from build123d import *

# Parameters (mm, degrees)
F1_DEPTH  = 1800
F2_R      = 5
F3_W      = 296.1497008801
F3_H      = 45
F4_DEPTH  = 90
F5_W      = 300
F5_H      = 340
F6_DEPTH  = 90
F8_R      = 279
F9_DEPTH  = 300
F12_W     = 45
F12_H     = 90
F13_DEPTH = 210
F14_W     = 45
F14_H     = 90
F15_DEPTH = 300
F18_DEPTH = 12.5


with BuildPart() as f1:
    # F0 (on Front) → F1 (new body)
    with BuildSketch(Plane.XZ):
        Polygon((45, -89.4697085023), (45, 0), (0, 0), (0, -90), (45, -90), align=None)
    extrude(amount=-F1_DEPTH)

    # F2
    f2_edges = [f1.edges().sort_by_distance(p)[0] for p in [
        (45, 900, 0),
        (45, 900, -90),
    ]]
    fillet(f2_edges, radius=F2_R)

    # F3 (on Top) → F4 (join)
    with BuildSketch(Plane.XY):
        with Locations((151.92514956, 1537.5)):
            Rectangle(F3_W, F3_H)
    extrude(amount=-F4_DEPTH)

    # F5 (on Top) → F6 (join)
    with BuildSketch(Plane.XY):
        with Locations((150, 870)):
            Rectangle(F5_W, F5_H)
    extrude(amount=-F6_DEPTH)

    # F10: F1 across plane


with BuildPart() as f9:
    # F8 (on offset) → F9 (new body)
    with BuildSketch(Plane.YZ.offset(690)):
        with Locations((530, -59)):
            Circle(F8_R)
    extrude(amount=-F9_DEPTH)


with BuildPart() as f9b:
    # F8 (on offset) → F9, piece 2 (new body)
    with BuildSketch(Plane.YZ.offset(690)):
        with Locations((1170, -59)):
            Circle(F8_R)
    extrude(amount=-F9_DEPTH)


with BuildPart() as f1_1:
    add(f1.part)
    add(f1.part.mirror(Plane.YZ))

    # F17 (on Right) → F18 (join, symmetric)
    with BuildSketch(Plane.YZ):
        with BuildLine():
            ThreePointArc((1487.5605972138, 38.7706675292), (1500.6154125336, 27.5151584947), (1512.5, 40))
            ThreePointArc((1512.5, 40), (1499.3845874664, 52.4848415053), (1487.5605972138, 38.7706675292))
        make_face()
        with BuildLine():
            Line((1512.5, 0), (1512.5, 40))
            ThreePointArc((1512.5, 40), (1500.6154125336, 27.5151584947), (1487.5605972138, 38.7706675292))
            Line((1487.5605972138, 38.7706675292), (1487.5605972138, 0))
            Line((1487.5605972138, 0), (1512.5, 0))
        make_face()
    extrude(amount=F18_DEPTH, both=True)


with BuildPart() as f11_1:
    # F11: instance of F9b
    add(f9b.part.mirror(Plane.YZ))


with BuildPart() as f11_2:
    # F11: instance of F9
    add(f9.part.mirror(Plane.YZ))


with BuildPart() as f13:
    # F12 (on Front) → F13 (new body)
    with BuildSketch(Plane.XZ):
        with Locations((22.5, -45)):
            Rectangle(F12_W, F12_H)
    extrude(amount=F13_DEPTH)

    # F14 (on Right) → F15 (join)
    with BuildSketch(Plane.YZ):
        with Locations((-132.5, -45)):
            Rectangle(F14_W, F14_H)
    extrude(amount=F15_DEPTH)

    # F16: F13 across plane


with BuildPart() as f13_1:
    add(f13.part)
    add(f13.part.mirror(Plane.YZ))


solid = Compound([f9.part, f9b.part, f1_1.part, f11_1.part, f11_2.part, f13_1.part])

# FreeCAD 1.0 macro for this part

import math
import FreeCAD as App
import Part
import Sketcher
from FreeCAD import Vector


def edges_at(feature, points):
    """Names of the edges that pass closest to the given points."""
    edges = feature.Shape.Edges
    near = lambda p: min(range(len(edges)), key=lambda i: edges[i].distToShape(Part.Vertex(*p))[0])
    return sorted({f"Edge{near(p) + 1}" for p in points})

doc = App.newDocument("Part")
body = doc.addObject("PartDesign::Body", "Body")

# Sketch on XZ plane
sketch1 = body.newObject("Sketcher::SketchObject", "Sketch")
sketch1.AttachmentSupport = (doc.getObject("XZ_Plane"), [""])
sketch1.MapMode = "FlatFace"
sketch1.addGeometry(Part.LineSegment(Vector(45, 0, 0), Vector(0, 0, 0)), False)
sketch1.addGeometry(Part.LineSegment(Vector(0, 0, 0), Vector(0, -90, 0)), False)
sketch1.addGeometry(Part.LineSegment(Vector(0, -90, 0), Vector(45, -90, 0)), False)
sketch1.addGeometry(Part.LineSegment(Vector(45, -90, 0), Vector(45, 0, 0)), False)
sketch1.addConstraint(Sketcher.Constraint("Coincident", 0, 2, 1, 1))
sketch1.addConstraint(Sketcher.Constraint("Coincident", 1, 2, 2, 1))
sketch1.addConstraint(Sketcher.Constraint("Coincident", 2, 2, 3, 1))
sketch1.addConstraint(Sketcher.Constraint("Coincident", 3, 2, 0, 1))
sketch1.addConstraint(Sketcher.Constraint("Horizontal", 0))
sketch1.addConstraint(Sketcher.Constraint("Vertical", 1))
sketch1.addConstraint(Sketcher.Constraint("Horizontal", 2))
sketch1.addConstraint(Sketcher.Constraint("Vertical", 3))
sketch1.addConstraint(Sketcher.Constraint("Coincident", 0, 2, -1, 1))
sketch1.addConstraint(Sketcher.Constraint("DistanceX", 0, 2, 0, 1, 45.0))
sketch1.addConstraint(Sketcher.Constraint("DistanceY", 1, 2, 1, 1, 90.0))
pad1 = body.newObject("PartDesign::Pad", "Pad")
pad1.Profile = sketch1
pad1.Length = 1800
pad1.Reversed = True
doc.recompute()

fillet = body.newObject("PartDesign::Fillet", "Fillet")
fillet.Base = (pad1, edges_at(pad1, [(45, 900, 0), (45, 900, -90)]))
fillet.Radius = 5

# Sketch on XY plane
sketch2 = body.newObject("Sketcher::SketchObject", "Sketch001")
sketch2.AttachmentSupport = (doc.getObject("XY_Plane"), [""])
sketch2.MapMode = "FlatFace"
sketch2.addGeometry(Part.LineSegment(Vector(4, 1560, 0), Vector(4, 1515, 0)), False)
sketch2.addGeometry(Part.LineSegment(Vector(4, 1515, 0), Vector(300, 1515, 0)), False)
sketch2.addGeometry(Part.LineSegment(Vector(300, 1515, 0), Vector(300, 1560, 0)), False)
sketch2.addGeometry(Part.LineSegment(Vector(300, 1560, 0), Vector(4, 1560, 0)), False)
sketch2.addConstraint(Sketcher.Constraint("Coincident", 0, 2, 1, 1))
sketch2.addConstraint(Sketcher.Constraint("Coincident", 1, 2, 2, 1))
sketch2.addConstraint(Sketcher.Constraint("Coincident", 2, 2, 3, 1))
sketch2.addConstraint(Sketcher.Constraint("Coincident", 3, 2, 0, 1))
sketch2.addConstraint(Sketcher.Constraint("Vertical", 0))
sketch2.addConstraint(Sketcher.Constraint("Horizontal", 1))
sketch2.addConstraint(Sketcher.Constraint("Vertical", 2))
sketch2.addConstraint(Sketcher.Constraint("Horizontal", 3))
sketch2.addConstraint(Sketcher.Constraint("DistanceY", 0, 2, 0, 1, 45.0))
sketch2.addConstraint(Sketcher.Constraint("DistanceY", -1, 1, 0, 2, 1515.0))
sketch2.addConstraint(Sketcher.Constraint("DistanceX", -1, 1, 1, 2, 300.0))
sketch2.addConstraint(Sketcher.Constraint("DistanceX", 1, 1, 1, 2, 296.149701))
pad2 = body.newObject("PartDesign::Pad", "Pad001")
pad2.Profile = sketch2
pad2.Length = 90
pad2.Reversed = True

# Sketch on XY plane
sketch3 = body.newObject("Sketcher::SketchObject", "Sketch002")
sketch3.AttachmentSupport = (doc.getObject("XY_Plane"), [""])
sketch3.MapMode = "FlatFace"
sketch3.addGeometry(Part.LineSegment(Vector(0, 1040, 0), Vector(0, 700, 0)), False)
sketch3.addGeometry(Part.LineSegment(Vector(0, 700, 0), Vector(300, 700, 0)), False)
sketch3.addGeometry(Part.LineSegment(Vector(300, 700, 0), Vector(300, 1040, 0)), False)
sketch3.addGeometry(Part.LineSegment(Vector(300, 1040, 0), Vector(0, 1040, 0)), False)
sketch3.addConstraint(Sketcher.Constraint("Coincident", 0, 2, 1, 1))
sketch3.addConstraint(Sketcher.Constraint("Coincident", 1, 2, 2, 1))
sketch3.addConstraint(Sketcher.Constraint("Coincident", 2, 2, 3, 1))
sketch3.addConstraint(Sketcher.Constraint("Coincident", 3, 2, 0, 1))
sketch3.addConstraint(Sketcher.Constraint("Vertical", 0))
sketch3.addConstraint(Sketcher.Constraint("Horizontal", 1))
sketch3.addConstraint(Sketcher.Constraint("Vertical", 2))
sketch3.addConstraint(Sketcher.Constraint("Horizontal", 3))
sketch3.addConstraint(Sketcher.Constraint("PointOnObject", 0, 2, -2))
sketch3.addConstraint(Sketcher.Constraint("DistanceX", 1, 1, 1, 2, 300.0))
sketch3.addConstraint(Sketcher.Constraint("DistanceY", 0, 2, 0, 1, 340.0))
sketch3.addConstraint(Sketcher.Constraint("DistanceY", -1, 1, 0, 2, 700.0))
pad3 = body.newObject("PartDesign::Pad", "Pad002")
pad3.Profile = sketch3
pad3.Length = 90
pad3.Reversed = True
body2 = doc.addObject("PartDesign::Body", "Body001")

# Sketch on YZ plane
sketch4 = body2.newObject("Sketcher::SketchObject", "Sketch003")
sketch4.AttachmentSupport = (doc.getObject("YZ_Plane001"), [""])
sketch4.MapMode = "FlatFace"
sketch4.AttachmentOffset = App.Placement(Vector(0, 0, 690), App.Rotation())
sketch4.addGeometry(Part.Circle(Vector(530, -59, 0), Vector(0, 0, 1), 279), False)
sketch4.addConstraint(Sketcher.Constraint("Diameter", 0, 558.0))
sketch4.addConstraint(Sketcher.Constraint("DistanceX", -1, 1, 0, 3, 530.0))
sketch4.addConstraint(Sketcher.Constraint("DistanceY", 0, 3, -1, 1, 59.0))
pad4 = body2.newObject("PartDesign::Pad", "Pad003")
pad4.Profile = sketch4
pad4.Length = 300
pad4.Reversed = True
body3 = doc.addObject("PartDesign::Body", "Body002")

# Sketch on YZ plane
sketch5 = body3.newObject("Sketcher::SketchObject", "Sketch004")
sketch5.AttachmentSupport = (doc.getObject("YZ_Plane002"), [""])
sketch5.MapMode = "FlatFace"
sketch5.AttachmentOffset = App.Placement(Vector(0, 0, 690), App.Rotation())
sketch5.addGeometry(Part.Circle(Vector(1170, -59, 0), Vector(0, 0, 1), 279), False)
sketch5.addConstraint(Sketcher.Constraint("Diameter", 0, 558.0))
sketch5.addConstraint(Sketcher.Constraint("DistanceX", -1, 1, 0, 3, 1170.0))
sketch5.addConstraint(Sketcher.Constraint("DistanceY", 0, 3, -1, 1, 59.0))
pad5 = body3.newObject("PartDesign::Pad", "Pad004")
pad5.Profile = sketch5
pad5.Length = 300
pad5.Reversed = True
body4 = doc.addObject("PartDesign::Body", "Body003")
doc.recompute()

body4.BaseFeature = body
doc.recompute()

mirroring = doc.addObject("Part::Mirroring", "Mirroring")
mirroring.Source = body
mirroring.Base = Vector(0, 0, 0)
mirroring.Normal = Vector(1, 0, 0)
body5 = doc.addObject("PartDesign::Body", "Body004")
body5.BaseFeature = mirroring
boolean = body4.newObject("PartDesign::Boolean", "Boolean")
boolean.Type = "Fuse"
boolean.addObjects([body5])
doc.recompute()

# Sketch on YZ plane
sketch6 = body4.newObject("Sketcher::SketchObject", "Sketch005")
sketch6.AttachmentSupport = (doc.getObject("YZ_Plane003"), [""])
sketch6.MapMode = "FlatFace"
sketch6.addGeometry(Part.ArcOfCircle(Part.Circle(Vector(1500, 40, 0), Vector(0, 0, 1), 12), math.radians(0), math.radians(186)), False)
sketch6.addGeometry(Part.LineSegment(Vector(1488, 39, 0), Vector(1488, 0, 0)), False)
sketch6.addGeometry(Part.LineSegment(Vector(1488, 0, 0), Vector(1512, 0, 0)), False)
sketch6.addGeometry(Part.LineSegment(Vector(1512, 0, 0), Vector(1512, 40, 0)), False)
sketch6.addConstraint(Sketcher.Constraint("Coincident", 0, 2, 1, 1))
sketch6.addConstraint(Sketcher.Constraint("Coincident", 1, 2, 2, 1))
sketch6.addConstraint(Sketcher.Constraint("Coincident", 2, 2, 3, 1))
sketch6.addConstraint(Sketcher.Constraint("Tangent", 3, 2, 0, 1))
sketch6.addConstraint(Sketcher.Constraint("Vertical", 1))
sketch6.addConstraint(Sketcher.Constraint("Horizontal", 2))
sketch6.addConstraint(Sketcher.Constraint("Vertical", 3))
sketch6.addConstraint(Sketcher.Constraint("PointOnObject", 1, 2, -1))
sketch6.addConstraint(Sketcher.Constraint("Radius", 0, 12.5))
sketch6.addConstraint(Sketcher.Constraint("DistanceY", 3, 1, 3, 2, 40.0))
sketch6.addConstraint(Sketcher.Constraint("DistanceX", -1, 1, 0, 3, 1500.0))
sketch6.addConstraint(Sketcher.Constraint("DistanceX", 2, 1, 2, 2, 24.939403))
pad6 = body4.newObject("PartDesign::Pad", "Pad005")
pad6.Profile = sketch6
pad6.Length = 25
pad6.Midplane = True
body6 = doc.addObject("PartDesign::Body", "Body005")
doc.recompute()

mirroring2 = doc.addObject("Part::Mirroring", "Mirroring001")
mirroring2.Source = body3
mirroring2.Base = Vector(0, 0, 0)
mirroring2.Normal = Vector(1, 0, 0)
body6.BaseFeature = mirroring2
doc.recompute()
body7 = doc.addObject("PartDesign::Body", "Body006")
doc.recompute()

mirroring3 = doc.addObject("Part::Mirroring", "Mirroring002")
mirroring3.Source = body2
mirroring3.Base = Vector(0, 0, 0)
mirroring3.Normal = Vector(1, 0, 0)
body7.BaseFeature = mirroring3
doc.recompute()
body8 = doc.addObject("PartDesign::Body", "Body007")

# Sketch on XZ plane
sketch7 = body8.newObject("Sketcher::SketchObject", "Sketch006")
sketch7.AttachmentSupport = (doc.getObject("XZ_Plane007"), [""])
sketch7.MapMode = "FlatFace"
sketch7.addGeometry(Part.LineSegment(Vector(0, 0, 0), Vector(0, -90, 0)), False)
sketch7.addGeometry(Part.LineSegment(Vector(0, -90, 0), Vector(45, -90, 0)), False)
sketch7.addGeometry(Part.LineSegment(Vector(45, -90, 0), Vector(45, 0, 0)), False)
sketch7.addGeometry(Part.LineSegment(Vector(45, 0, 0), Vector(0, 0, 0)), False)
sketch7.addConstraint(Sketcher.Constraint("Coincident", 0, 2, 1, 1))
sketch7.addConstraint(Sketcher.Constraint("Coincident", 1, 2, 2, 1))
sketch7.addConstraint(Sketcher.Constraint("Coincident", 2, 2, 3, 1))
sketch7.addConstraint(Sketcher.Constraint("Coincident", 3, 2, 0, 1))
sketch7.addConstraint(Sketcher.Constraint("Vertical", 0))
sketch7.addConstraint(Sketcher.Constraint("Horizontal", 1))
sketch7.addConstraint(Sketcher.Constraint("Vertical", 2))
sketch7.addConstraint(Sketcher.Constraint("Horizontal", 3))
sketch7.addConstraint(Sketcher.Constraint("Coincident", 3, 2, -1, 1))
sketch7.addConstraint(Sketcher.Constraint("DistanceX", 1, 1, 1, 2, 45.0))
sketch7.addConstraint(Sketcher.Constraint("DistanceY", 0, 2, 0, 1, 90.0))
pad7 = body8.newObject("PartDesign::Pad", "Pad006")
pad7.Profile = sketch7
pad7.Length = 210

# Sketch on YZ plane
sketch8 = body8.newObject("Sketcher::SketchObject", "Sketch007")
sketch8.AttachmentSupport = (doc.getObject("YZ_Plane007"), [""])
sketch8.MapMode = "FlatFace"
sketch8.addGeometry(Part.LineSegment(Vector(-155, 0, 0), Vector(-155, -90, 0)), False)
sketch8.addGeometry(Part.LineSegment(Vector(-155, -90, 0), Vector(-110, -90, 0)), False)
sketch8.addGeometry(Part.LineSegment(Vector(-110, -90, 0), Vector(-110, 0, 0)), False)
sketch8.addGeometry(Part.LineSegment(Vector(-110, 0, 0), Vector(-155, 0, 0)), False)
sketch8.addConstraint(Sketcher.Constraint("Coincident", 0, 2, 1, 1))
sketch8.addConstraint(Sketcher.Constraint("Coincident", 1, 2, 2, 1))
sketch8.addConstraint(Sketcher.Constraint("Coincident", 2, 2, 3, 1))
sketch8.addConstraint(Sketcher.Constraint("Coincident", 3, 2, 0, 1))
sketch8.addConstraint(Sketcher.Constraint("Vertical", 0))
sketch8.addConstraint(Sketcher.Constraint("Horizontal", 1))
sketch8.addConstraint(Sketcher.Constraint("Vertical", 2))
sketch8.addConstraint(Sketcher.Constraint("Horizontal", 3))
sketch8.addConstraint(Sketcher.Constraint("PointOnObject", 2, 2, -1))
sketch8.addConstraint(Sketcher.Constraint("DistanceX", 1, 1, 1, 2, 45.0))
sketch8.addConstraint(Sketcher.Constraint("DistanceY", 0, 2, 0, 1, 90.0))
sketch8.addConstraint(Sketcher.Constraint("DistanceX", 0, 2, -1, 1, 155.0))
pad8 = body8.newObject("PartDesign::Pad", "Pad007")
pad8.Profile = sketch8
pad8.Length = 300
body9 = doc.addObject("PartDesign::Body", "Body008")
doc.recompute()

body9.BaseFeature = body8
doc.recompute()

mirroring4 = doc.addObject("Part::Mirroring", "Mirroring003")
mirroring4.Source = body8
mirroring4.Base = Vector(0, 0, 0)
mirroring4.Normal = Vector(1, 0, 0)
body10 = doc.addObject("PartDesign::Body", "Body009")
body10.BaseFeature = mirroring4
boolean2 = body9.newObject("PartDesign::Boolean", "Boolean001")
boolean2.Type = "Fuse"
boolean2.addObjects([body10])
doc.recompute()
mirroring.Visibility = False
mirroring2.Visibility = False
mirroring3.Visibility = False
mirroring4.Visibility = False

doc.recompute()
